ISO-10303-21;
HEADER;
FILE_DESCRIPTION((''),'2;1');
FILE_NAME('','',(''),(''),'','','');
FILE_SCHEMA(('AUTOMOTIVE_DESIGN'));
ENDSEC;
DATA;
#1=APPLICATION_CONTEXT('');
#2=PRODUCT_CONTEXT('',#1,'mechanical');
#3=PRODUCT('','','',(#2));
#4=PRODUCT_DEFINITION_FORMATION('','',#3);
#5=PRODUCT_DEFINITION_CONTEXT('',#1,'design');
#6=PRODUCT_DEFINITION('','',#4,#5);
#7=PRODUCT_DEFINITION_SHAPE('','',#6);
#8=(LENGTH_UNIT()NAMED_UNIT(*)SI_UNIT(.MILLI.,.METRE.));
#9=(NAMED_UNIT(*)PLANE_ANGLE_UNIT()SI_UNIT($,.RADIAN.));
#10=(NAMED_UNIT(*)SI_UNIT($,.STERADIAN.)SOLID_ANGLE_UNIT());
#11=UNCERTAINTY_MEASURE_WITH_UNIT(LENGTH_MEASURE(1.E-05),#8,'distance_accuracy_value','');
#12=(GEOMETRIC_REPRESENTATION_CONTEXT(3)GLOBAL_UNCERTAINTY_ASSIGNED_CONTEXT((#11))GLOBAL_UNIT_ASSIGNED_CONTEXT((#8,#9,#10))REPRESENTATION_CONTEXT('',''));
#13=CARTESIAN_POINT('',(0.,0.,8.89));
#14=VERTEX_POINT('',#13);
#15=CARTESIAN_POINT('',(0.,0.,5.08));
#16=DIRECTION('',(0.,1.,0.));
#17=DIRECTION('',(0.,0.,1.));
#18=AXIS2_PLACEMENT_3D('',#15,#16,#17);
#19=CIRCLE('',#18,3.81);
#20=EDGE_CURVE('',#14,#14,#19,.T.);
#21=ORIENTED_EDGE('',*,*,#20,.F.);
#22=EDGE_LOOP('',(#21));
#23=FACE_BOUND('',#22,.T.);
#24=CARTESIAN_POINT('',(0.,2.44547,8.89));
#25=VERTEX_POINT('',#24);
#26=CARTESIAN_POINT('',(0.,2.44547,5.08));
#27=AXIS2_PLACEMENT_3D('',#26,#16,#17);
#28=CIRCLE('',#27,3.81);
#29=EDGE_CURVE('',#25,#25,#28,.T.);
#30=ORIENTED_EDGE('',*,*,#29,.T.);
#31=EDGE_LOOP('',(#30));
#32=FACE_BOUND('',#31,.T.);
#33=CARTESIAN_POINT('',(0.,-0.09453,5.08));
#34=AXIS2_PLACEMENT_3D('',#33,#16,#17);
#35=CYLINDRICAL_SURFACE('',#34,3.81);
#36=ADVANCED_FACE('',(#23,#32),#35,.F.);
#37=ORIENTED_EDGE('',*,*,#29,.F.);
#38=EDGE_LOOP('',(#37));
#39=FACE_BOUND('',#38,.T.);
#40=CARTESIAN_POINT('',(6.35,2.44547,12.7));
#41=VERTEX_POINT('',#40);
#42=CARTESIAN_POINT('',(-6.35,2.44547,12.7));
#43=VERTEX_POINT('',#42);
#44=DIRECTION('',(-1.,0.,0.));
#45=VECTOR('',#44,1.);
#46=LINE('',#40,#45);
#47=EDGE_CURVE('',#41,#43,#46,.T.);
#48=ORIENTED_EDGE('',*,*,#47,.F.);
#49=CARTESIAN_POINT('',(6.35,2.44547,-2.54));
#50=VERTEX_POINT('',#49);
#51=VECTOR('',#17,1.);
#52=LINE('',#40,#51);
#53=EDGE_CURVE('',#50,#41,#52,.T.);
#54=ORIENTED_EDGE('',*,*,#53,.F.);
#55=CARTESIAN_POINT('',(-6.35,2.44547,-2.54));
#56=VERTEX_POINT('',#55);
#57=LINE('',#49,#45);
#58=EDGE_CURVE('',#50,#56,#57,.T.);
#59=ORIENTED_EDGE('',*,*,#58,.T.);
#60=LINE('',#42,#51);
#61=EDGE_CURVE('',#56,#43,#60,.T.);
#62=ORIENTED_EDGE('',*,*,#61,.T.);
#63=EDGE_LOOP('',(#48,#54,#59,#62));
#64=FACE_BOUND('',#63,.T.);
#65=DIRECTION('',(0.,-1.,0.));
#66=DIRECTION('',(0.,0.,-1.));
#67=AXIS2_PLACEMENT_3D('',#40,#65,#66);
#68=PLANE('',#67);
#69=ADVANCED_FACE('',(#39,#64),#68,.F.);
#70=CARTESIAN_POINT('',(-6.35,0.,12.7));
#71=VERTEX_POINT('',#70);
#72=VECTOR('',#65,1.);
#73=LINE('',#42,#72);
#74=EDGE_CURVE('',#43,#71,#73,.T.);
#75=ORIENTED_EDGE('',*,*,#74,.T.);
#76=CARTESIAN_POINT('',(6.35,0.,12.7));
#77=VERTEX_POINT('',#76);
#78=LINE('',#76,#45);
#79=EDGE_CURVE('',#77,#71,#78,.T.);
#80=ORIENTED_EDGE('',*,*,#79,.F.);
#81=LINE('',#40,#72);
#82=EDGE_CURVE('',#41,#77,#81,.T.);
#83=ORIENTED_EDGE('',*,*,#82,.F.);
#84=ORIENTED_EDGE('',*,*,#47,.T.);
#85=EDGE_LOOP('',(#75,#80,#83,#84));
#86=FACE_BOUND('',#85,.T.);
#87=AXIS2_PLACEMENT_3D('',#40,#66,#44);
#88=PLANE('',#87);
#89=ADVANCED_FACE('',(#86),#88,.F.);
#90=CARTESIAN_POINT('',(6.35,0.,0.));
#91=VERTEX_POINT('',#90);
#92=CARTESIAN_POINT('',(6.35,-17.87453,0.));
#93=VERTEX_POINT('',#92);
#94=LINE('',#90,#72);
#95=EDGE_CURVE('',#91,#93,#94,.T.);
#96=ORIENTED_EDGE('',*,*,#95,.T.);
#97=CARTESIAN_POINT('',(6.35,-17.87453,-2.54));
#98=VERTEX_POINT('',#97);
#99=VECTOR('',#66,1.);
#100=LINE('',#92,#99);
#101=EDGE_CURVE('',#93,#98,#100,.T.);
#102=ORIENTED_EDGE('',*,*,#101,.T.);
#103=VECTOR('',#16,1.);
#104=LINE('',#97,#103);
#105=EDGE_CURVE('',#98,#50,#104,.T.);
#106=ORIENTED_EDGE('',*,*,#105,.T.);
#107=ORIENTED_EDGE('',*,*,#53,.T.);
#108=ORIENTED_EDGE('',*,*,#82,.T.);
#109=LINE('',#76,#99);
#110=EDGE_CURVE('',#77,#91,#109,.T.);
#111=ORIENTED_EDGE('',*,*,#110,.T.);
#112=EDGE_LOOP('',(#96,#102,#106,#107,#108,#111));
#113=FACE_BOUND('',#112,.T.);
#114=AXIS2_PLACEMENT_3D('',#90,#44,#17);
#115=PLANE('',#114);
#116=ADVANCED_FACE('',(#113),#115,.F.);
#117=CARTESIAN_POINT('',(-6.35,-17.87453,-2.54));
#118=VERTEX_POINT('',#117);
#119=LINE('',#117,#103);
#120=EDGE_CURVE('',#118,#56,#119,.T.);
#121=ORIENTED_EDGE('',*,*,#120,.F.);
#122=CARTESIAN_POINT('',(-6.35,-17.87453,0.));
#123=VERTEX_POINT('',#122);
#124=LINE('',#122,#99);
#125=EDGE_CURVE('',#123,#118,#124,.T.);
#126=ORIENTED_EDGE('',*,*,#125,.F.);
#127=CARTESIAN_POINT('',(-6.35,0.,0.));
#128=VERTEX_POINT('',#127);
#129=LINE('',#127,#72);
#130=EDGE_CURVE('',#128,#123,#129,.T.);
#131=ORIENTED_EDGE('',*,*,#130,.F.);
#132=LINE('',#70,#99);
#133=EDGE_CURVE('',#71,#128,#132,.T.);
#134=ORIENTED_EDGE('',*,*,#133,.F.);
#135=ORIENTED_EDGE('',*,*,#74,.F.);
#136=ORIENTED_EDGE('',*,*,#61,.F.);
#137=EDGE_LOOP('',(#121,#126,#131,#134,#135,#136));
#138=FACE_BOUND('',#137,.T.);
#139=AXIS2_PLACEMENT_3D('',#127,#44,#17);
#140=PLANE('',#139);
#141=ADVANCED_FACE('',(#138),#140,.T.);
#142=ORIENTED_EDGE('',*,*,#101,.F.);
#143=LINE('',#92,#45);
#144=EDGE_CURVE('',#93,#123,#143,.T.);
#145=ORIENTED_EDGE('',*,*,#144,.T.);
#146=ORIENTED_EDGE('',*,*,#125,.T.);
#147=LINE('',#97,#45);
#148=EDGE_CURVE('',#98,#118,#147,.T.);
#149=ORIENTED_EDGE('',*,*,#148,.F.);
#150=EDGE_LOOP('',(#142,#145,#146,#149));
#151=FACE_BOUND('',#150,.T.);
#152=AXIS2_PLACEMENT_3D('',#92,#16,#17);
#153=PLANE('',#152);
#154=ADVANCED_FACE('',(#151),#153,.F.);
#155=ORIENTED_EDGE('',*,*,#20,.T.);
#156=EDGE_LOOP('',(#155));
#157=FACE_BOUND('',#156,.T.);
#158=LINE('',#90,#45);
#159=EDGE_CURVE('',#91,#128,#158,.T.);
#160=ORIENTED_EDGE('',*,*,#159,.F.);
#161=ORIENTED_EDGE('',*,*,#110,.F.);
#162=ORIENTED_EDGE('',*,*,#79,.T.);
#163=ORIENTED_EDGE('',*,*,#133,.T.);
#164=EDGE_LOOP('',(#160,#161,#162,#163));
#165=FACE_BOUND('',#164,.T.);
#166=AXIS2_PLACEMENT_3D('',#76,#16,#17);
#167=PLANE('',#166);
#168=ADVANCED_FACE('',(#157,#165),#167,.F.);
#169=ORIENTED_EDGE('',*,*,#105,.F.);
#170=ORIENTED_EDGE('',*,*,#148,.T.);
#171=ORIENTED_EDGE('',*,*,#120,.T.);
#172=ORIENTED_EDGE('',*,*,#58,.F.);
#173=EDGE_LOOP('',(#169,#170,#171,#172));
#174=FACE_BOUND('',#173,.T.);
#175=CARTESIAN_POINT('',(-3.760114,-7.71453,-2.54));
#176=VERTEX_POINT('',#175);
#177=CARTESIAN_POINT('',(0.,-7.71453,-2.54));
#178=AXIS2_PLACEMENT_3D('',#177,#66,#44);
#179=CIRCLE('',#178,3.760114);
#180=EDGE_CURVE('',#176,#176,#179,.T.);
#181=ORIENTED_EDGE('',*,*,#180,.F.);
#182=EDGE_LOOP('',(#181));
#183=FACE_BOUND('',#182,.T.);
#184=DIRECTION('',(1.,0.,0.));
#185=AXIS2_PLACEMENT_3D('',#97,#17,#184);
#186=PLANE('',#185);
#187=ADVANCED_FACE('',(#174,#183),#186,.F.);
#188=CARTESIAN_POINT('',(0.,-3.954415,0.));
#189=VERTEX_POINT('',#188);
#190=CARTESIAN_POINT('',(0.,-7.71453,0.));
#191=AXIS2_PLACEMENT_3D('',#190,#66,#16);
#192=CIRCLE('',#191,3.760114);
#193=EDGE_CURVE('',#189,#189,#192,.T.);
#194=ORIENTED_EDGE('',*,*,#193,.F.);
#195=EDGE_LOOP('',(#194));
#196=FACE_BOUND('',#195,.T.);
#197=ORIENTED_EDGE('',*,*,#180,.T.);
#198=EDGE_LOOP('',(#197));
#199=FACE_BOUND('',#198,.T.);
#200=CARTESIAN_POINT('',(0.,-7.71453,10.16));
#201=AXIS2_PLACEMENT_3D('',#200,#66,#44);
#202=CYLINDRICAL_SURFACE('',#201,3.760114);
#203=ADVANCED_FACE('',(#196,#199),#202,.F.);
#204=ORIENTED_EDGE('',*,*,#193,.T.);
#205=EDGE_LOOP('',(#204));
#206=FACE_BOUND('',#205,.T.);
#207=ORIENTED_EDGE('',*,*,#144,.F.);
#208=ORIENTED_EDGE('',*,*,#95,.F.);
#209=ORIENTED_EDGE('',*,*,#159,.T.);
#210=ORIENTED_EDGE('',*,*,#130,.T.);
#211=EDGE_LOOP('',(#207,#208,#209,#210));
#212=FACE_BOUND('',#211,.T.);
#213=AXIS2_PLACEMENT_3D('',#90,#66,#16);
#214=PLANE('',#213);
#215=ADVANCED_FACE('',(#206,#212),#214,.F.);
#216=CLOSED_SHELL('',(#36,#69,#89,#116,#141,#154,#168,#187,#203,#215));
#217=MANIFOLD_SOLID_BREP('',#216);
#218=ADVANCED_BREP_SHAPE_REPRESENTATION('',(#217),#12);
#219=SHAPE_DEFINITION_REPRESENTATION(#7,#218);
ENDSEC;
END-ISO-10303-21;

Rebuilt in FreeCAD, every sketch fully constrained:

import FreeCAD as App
import Part
import Sketcher

V = App.Vector
Q = App.Units.Quantity


def add_polygon(sketch, points):
    """Adds a closed chain of lines whose ends are joined by coincident constraints."""
    first, n = sketch.GeometryCount, len(points)
    for a, b in zip(points, points[1:] + points[:1]):
        sketch.addGeometry(Part.LineSegment(App.Vector(*a, 0), App.Vector(*b, 0)), False)
    for i in range(n):
        sketch.addConstraint(Sketcher.Constraint("Coincident", first + i, 2, first + (i + 1) % n, 1))

doc = App.newDocument("Part")
body = doc.addObject("PartDesign::Body", "Body")

sketch1 = body.newObject("Sketcher::SketchObject", "Sketch")
sketch1.AttachmentSupport = (doc.getObject("YZ_Plane"), [""])
sketch1.MapMode = "FlatFace"
add_polygon(sketch1, [(0, 0), (-17.9, 0), (-17.9, -2.5), (2.4, -2.5), (2.4, 12.7), (0, 12.7)])
sketch1.addConstraint([
    Sketcher.Constraint("Horizontal", 0),
    Sketcher.Constraint("Vertical", 1),
    Sketcher.Constraint("Horizontal", 2),
    Sketcher.Constraint("Vertical", 3),
    Sketcher.Constraint("Horizontal", 4),
    Sketcher.Constraint("Vertical", 5),
    Sketcher.Constraint("Coincident", 5, 2, -1, 1),
    Sketcher.Constraint("DistanceX", 2, 1, 2, 2, Q("0.8 in")),
    Sketcher.Constraint("DistanceY", 1, 2, 1, 1, Q("0.1 in")),
    Sketcher.Constraint("DistanceY", 3, 1, 3, 2, Q("0.6 in")),
    Sketcher.Constraint("DistanceX", 0, 2, 0, 1, Q("17.87453 mm")),
])
pad1 = body.newObject("PartDesign::Pad", "Pad")
pad1.Profile = sketch1
pad1.Length = Q("0.5 in")
pad1.Midplane = True

sketch2 = body.newObject("Sketcher::SketchObject", "Sketch001")
sketch2.AttachmentSupport = (doc.getObject("XY_Plane"), [""])
sketch2.MapMode = "FlatFace"
sketch2.AttachmentOffset = App.Placement(V(0, 0, -0.1 * 25.4), App.Rotation())
sketch2.addGeometry(Part.Circle(V(0, -7.7, 0), V(0, 0, 1), 3.8), False)
sketch2.addConstraint([
    Sketcher.Constraint("PointOnObject", 0, 3, -2),
    Sketcher.Constraint("Diameter", 0, Q("7.520229 mm")),
    Sketcher.Constraint("DistanceY", 0, 3, -1, 1, Q("7.71453 mm")),
])
pocket1 = body.newObject("PartDesign::Pocket", "Pocket")
pocket1.Profile = sketch2
pocket1.Length = Q("0.5 in")
pocket1.Reversed = True

sketch3 = body.newObject("Sketcher::SketchObject", "Sketch002")
sketch3.AttachmentSupport = (doc.getObject("XZ_Plane"), [""])
sketch3.MapMode = "FlatFace"
sketch3.AttachmentOffset = App.Placement(V(0, 0, -2.44547), App.Rotation())
sketch3.addGeometry(Part.Circle(V(0, 5.1, 0), V(0, 0, 1), 3.8), False)
sketch3.addConstraint([
    Sketcher.Constraint("PointOnObject", 0, 3, -2),
    Sketcher.Constraint("Diameter", 0, Q("0.3 in")),
    Sketcher.Constraint("DistanceY", -1, 1, 0, 3, Q("0.2 in")),
])
pocket2 = body.newObject("PartDesign::Pocket", "Pocket001")
pocket2.Profile = sketch3
pocket2.Length = Q("0.1 in")
pocket2.Reversed = True

doc.recompute()
